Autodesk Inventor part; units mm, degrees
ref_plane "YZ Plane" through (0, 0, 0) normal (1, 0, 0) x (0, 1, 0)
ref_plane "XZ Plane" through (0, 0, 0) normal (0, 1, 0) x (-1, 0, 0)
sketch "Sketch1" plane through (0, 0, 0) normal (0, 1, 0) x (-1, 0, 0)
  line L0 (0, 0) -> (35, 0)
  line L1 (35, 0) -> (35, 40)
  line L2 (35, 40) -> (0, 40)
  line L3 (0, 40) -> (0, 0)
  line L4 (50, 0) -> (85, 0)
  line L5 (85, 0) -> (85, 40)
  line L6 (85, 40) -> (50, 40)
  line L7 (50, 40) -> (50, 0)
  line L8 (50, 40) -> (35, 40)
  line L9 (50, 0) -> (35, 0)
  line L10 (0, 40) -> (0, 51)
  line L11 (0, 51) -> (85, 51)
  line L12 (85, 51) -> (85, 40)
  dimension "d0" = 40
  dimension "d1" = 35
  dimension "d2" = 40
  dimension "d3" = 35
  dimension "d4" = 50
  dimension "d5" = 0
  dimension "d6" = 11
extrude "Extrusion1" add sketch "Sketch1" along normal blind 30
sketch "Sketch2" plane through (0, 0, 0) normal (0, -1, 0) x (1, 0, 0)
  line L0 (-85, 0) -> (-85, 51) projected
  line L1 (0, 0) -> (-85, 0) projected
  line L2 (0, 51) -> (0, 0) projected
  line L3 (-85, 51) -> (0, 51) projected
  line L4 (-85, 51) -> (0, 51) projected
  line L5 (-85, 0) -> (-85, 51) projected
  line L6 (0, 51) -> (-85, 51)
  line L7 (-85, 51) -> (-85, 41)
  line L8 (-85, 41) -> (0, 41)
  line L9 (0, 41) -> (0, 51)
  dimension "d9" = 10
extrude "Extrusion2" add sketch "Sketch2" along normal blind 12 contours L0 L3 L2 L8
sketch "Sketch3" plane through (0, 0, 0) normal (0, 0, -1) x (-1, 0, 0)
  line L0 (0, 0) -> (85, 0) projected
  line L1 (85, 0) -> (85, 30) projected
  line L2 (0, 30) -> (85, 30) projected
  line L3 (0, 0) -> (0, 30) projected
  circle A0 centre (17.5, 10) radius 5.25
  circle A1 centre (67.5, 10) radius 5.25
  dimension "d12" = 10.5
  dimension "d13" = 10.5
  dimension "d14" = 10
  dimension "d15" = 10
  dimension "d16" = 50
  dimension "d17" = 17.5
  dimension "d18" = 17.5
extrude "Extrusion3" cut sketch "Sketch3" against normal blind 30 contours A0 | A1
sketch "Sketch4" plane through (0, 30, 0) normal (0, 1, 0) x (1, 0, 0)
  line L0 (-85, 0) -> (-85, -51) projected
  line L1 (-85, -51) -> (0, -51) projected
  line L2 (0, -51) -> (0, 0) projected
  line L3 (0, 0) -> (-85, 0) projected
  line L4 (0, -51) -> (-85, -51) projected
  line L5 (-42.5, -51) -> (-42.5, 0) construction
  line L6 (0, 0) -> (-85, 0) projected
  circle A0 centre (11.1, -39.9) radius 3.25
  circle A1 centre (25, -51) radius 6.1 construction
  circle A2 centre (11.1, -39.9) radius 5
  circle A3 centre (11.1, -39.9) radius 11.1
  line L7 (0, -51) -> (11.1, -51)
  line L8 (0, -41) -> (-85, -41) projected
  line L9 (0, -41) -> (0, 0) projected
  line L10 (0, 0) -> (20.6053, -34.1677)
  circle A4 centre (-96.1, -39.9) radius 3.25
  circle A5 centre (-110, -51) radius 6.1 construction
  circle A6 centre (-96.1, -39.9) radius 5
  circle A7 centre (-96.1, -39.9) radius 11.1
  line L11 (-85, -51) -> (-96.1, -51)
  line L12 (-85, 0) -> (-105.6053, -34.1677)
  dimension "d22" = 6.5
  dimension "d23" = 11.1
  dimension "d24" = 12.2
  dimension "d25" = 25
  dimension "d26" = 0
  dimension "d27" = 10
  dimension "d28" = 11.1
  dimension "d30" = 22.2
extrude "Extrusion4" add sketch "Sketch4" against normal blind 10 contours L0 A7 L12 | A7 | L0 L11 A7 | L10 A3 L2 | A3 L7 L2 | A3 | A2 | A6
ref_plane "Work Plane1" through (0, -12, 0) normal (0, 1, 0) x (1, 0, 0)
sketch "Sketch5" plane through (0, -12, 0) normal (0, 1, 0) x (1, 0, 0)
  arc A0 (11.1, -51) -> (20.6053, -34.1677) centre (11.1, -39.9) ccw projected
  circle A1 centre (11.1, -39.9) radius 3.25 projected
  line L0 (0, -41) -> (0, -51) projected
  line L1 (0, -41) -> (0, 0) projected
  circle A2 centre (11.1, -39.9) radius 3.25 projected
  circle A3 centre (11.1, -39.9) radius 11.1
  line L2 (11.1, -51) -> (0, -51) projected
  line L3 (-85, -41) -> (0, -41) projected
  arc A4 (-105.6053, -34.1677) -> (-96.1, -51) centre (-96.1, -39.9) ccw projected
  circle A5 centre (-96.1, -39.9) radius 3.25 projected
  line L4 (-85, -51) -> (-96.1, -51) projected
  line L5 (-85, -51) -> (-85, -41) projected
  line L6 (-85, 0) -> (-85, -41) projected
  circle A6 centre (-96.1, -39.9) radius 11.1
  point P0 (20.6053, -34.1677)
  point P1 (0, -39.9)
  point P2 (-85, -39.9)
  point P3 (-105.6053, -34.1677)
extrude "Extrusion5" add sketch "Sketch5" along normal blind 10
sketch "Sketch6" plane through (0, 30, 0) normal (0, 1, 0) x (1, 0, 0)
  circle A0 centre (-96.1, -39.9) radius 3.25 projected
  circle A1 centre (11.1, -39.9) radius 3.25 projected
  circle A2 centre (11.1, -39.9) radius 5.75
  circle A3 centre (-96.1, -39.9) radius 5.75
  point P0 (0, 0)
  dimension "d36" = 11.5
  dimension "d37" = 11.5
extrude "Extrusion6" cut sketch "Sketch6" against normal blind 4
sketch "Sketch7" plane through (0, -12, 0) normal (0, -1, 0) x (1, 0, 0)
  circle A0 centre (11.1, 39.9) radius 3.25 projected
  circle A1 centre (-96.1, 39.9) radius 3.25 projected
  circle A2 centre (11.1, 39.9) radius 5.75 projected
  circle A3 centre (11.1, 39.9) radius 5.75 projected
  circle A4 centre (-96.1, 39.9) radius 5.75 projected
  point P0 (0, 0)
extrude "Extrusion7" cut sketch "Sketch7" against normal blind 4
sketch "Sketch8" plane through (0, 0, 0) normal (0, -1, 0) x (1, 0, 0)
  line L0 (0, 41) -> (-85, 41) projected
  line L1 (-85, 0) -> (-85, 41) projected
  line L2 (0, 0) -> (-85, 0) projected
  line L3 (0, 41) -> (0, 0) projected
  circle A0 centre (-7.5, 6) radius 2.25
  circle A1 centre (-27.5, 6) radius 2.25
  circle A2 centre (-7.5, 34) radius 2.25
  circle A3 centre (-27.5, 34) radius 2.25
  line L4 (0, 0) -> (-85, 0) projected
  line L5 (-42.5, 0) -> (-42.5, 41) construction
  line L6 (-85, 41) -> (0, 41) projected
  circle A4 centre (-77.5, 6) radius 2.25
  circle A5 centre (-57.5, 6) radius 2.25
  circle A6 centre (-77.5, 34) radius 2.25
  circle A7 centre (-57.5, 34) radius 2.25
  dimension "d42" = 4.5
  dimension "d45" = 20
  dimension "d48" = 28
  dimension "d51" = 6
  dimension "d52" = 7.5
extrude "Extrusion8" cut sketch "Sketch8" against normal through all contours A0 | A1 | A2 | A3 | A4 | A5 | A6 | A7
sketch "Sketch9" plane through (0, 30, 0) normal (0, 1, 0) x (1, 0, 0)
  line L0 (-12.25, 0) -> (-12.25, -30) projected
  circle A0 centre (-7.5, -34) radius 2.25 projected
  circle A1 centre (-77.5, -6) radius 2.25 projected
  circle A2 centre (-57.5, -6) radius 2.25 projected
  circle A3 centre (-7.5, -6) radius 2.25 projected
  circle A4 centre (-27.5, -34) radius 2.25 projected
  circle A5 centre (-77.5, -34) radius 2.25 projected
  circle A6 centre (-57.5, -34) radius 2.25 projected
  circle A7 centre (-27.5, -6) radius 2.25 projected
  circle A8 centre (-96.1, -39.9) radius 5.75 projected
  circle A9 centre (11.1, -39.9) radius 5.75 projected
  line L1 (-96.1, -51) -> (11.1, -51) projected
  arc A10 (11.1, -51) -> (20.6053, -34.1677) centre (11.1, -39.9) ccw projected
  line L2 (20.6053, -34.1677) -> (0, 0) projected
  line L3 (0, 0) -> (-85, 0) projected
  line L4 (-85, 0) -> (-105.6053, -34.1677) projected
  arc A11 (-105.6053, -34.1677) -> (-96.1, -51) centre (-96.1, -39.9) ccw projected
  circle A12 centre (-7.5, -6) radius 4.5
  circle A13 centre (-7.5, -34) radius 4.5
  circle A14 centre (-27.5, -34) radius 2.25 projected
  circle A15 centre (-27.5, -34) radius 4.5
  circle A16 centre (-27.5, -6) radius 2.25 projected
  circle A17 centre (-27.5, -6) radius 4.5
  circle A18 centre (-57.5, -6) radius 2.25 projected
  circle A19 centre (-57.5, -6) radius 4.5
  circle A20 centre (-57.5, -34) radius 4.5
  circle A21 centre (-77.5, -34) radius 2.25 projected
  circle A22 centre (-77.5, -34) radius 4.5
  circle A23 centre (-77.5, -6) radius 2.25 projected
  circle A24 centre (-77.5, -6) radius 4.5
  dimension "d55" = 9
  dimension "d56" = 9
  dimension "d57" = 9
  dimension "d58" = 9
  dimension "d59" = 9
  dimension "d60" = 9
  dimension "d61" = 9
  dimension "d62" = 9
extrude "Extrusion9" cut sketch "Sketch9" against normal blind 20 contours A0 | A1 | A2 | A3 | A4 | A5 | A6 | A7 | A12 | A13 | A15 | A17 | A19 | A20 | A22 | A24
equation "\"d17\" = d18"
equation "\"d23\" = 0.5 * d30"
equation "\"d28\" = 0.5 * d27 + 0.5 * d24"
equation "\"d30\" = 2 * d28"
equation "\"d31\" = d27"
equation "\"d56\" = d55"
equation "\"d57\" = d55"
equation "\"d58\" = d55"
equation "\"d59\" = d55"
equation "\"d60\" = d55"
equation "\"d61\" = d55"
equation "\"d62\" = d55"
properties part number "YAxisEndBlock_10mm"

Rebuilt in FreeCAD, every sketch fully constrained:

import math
import FreeCAD as App
import Part
import Sketcher
from FreeCAD import Vector

doc = App.newDocument("Part")
body = doc.addObject("PartDesign::Body", "Body")

sketch1 = body.newObject("Sketcher::SketchObject", "Sketch")
sketch1.AttachmentSupport = (doc.getObject("XZ_Plane"), [""])
sketch1.MapMode = "FlatFace"
sketch1.addGeometry([
    Part.LineSegment(Vector(0, 0, 0), Vector(-85, 0, 0)),
    Part.LineSegment(Vector(-85, 0, 0), Vector(-85, 51, 0)),
    Part.LineSegment(Vector(-85, 51, 0), Vector(0, 51, 0)),
    Part.LineSegment(Vector(0, 51, 0), Vector(0, 0, 0)),
], False)
sketch1.addConstraint([
    Sketcher.Constraint("Coincident", 0, 2, 1, 1),
    Sketcher.Constraint("Coincident", 1, 2, 2, 1),
    Sketcher.Constraint("Coincident", 2, 2, 3, 1),
    Sketcher.Constraint("Coincident", 3, 2, 0, 1),
    Sketcher.Constraint("Horizontal", 0),
    Sketcher.Constraint("Vertical", 1),
    Sketcher.Constraint("Horizontal", 2),
    Sketcher.Constraint("Vertical", 3),
    Sketcher.Constraint("Coincident", 3, 2, -1, 1),
    Sketcher.Constraint("DistanceX", 0, 2, 0, 1, 85.0),
    Sketcher.Constraint("DistanceY", 1, 1, 1, 2, 51.0),
])
pad1 = body.newObject("PartDesign::Pad", "Pad")
pad1.Profile = sketch1
pad1.Length = 30
pad1.Reversed = True

sketch2 = body.newObject("Sketcher::SketchObject", "Sketch001")
sketch2.AttachmentSupport = (doc.getObject("XZ_Plane"), [""])
sketch2.MapMode = "FlatFace"
sketch2.addGeometry([
    Part.LineSegment(Vector(-85, 51, 0), Vector(-85, 41, 0)),
    Part.LineSegment(Vector(-85, 41, 0), Vector(0, 41, 0)),
    Part.LineSegment(Vector(0, 41, 0), Vector(0, 51, 0)),
    Part.LineSegment(Vector(0, 51, 0), Vector(-85, 51, 0)),
], False)
sketch2.addConstraint([
    Sketcher.Constraint("Coincident", 0, 2, 1, 1),
    Sketcher.Constraint("Coincident", 1, 2, 2, 1),
    Sketcher.Constraint("Coincident", 2, 2, 3, 1),
    Sketcher.Constraint("Coincident", 3, 2, 0, 1),
    Sketcher.Constraint("Vertical", 0),
    Sketcher.Constraint("Horizontal", 1),
    Sketcher.Constraint("Vertical", 2),
    Sketcher.Constraint("Horizontal", 3),
    Sketcher.Constraint("PointOnObject", 1, 2, -2),
    Sketcher.Constraint("DistanceY", 0, 2, 0, 1, 10.0),
    Sketcher.Constraint("DistanceX", 1, 1, 1, 2, 85.0),
    Sketcher.Constraint("DistanceY", -1, 1, 0, 2, 41.0),
])
pad2 = body.newObject("PartDesign::Pad", "Pad001")
pad2.Profile = sketch2
pad2.Length = 12

sketch3 = body.newObject("Sketcher::SketchObject", "Sketch002")
sketch3.AttachmentSupport = (doc.getObject("XY_Plane"), [""])
sketch3.MapMode = "FlatFace"
sketch3.addGeometry([
    Part.Circle(Vector(-18, 10, 0), Vector(0, 0, 1), 5),
    Part.Circle(Vector(-68, 10, 0), Vector(0, 0, 1), 5),
], False)
sketch3.addConstraint([
    Sketcher.Constraint("Equal", 0, 1),
    Sketcher.Constraint("Horizontal", 0, 3, 1, 3),
    Sketcher.Constraint("Diameter", 0, 10.5),
    Sketcher.Constraint("DistanceY", -1, 1, 0, 3, 10.0),
    Sketcher.Constraint("DistanceX", 1, 3, 0, 3, 50.0),
    Sketcher.Constraint("DistanceX", 0, 3, -1, 1, 17.5),
])
pocket1 = body.newObject("PartDesign::Pocket", "Pocket")
pocket1.Profile = sketch3
pocket1.Length = 30
pocket1.Reversed = True

sketch4 = body.newObject("Sketcher::SketchObject", "Sketch003")
sketch4.AttachmentSupport = (doc.getObject("XZ_Plane"), [""])
sketch4.MapMode = "FlatFace"
sketch4.AttachmentOffset = App.Placement(Vector(0, 0, -30), App.Rotation())
sketch4.addGeometry([
    Part.LineSegment(Vector(-85, 0, 0), Vector(-105.6, 34.2, 0)),
    Part.ArcOfCircle(Part.Circle(Vector(-96.1, 39.9, 0), Vector(0, 0, 1), 11.1), math.radians(90), math.radians(211)),
    Part.LineSegment(Vector(-96.1, 51, 0), Vector(-85, 51, 0)),
    Part.LineSegment(Vector(-85, 51, 0), Vector(-85, 0, 0)),
    Part.Circle(Vector(-96.1, 39.9, 0), Vector(0, 0, 1), 3.2),
    Part.LineSegment(Vector(20.6, 34.2, 0), Vector(0, 0, 0)),
    Part.LineSegment(Vector(0, 0, 0), Vector(0, 51, 0)),
    Part.LineSegment(Vector(0, 51, 0), Vector(11.1, 51, 0)),
    Part.ArcOfCircle(Part.Circle(Vector(11.1, 39.9, 0), Vector(0, 0, 1), 11.1), math.radians(-31), math.radians(90)),
    Part.Circle(Vector(11.1, 39.9, 0), Vector(0, 0, 1), 3.2),
], False)
sketch4.addConstraint([
    Sketcher.Constraint("Tangent", 0, 2, 1, 2),
    Sketcher.Constraint("Tangent", 1, 1, 2, 1),
    Sketcher.Constraint("Coincident", 2, 2, 3, 1),
    Sketcher.Constraint("Coincident", 3, 2, 0, 1),
    Sketcher.Constraint("Coincident", 5, 2, 6, 1),
    Sketcher.Constraint("Coincident", 6, 2, 7, 1),
    Sketcher.Constraint("Tangent", 7, 2, 8, 2),
    Sketcher.Constraint("Tangent", 8, 1, 5, 1),
    Sketcher.Constraint("Horizontal", 2),
    Sketcher.Constraint("Vertical", 3),
    Sketcher.Constraint("Vertical", 6),
    Sketcher.Constraint("Horizontal", 7),
    Sketcher.Constraint("Coincident", 5, 2, -1, 1),
    Sketcher.Constraint("Coincident", 4, 3, 1, 3),
    Sketcher.Constraint("Coincident", 9, 3, 8, 3),
    Sketcher.Constraint("Equal", 1, 8),
    Sketcher.Constraint("Equal", 4, 9),
    Sketcher.Constraint("PointOnObject", 3, 2, -1),
    Sketcher.Constraint("Horizontal", 4, 3, 8, 3),
    Sketcher.Constraint("Horizontal", 0, 2, 8, 1),
    Sketcher.Constraint("Diameter", 4, 6.5),
    Sketcher.Constraint("Radius", 1, 11.1),
    Sketcher.Constraint("DistanceX", 2, 1, 2, 2, 11.1),
    Sketcher.Constraint("DistanceY", 3, 2, 3, 1, 51.0),
    Sketcher.Constraint("DistanceX", 2, 2, -1, 1, 85.0),
])
pad3 = body.newObject("PartDesign::Pad", "Pad002")
pad3.Profile = sketch4
pad3.Length = 10

sketch5 = body.newObject("Sketcher::SketchObject", "Sketch004")
sketch5.AttachmentSupport = (doc.getObject("XZ_Plane"), [""])
sketch5.MapMode = "FlatFace"
sketch5.AttachmentOffset = App.Placement(Vector(0, 0, 12), App.Rotation())
sketch5.addGeometry([
    Part.ArcOfCircle(Part.Circle(Vector(11.1, 39.9, 0), Vector(0, 0, 1), 11.1), math.radians(180), math.radians(329)),
    Part.LineSegment(Vector(0, 39.9, 0), Vector(0, 51, 0)),
    Part.LineSegment(Vector(0, 51, 0), Vector(11.1, 51, 0)),
    Part.ArcOfCircle(Part.Circle(Vector(11.1, 39.9, 0), Vector(0, 0, 1), 11.1), math.radians(-31), math.radians(90)),
    Part.Circle(Vector(11.1, 39.9, 0), Vector(0, 0, 1), 3.2),
    Part.LineSegment(Vector(-85, 51, 0), Vector(-85, 39.9, 0)),
    Part.ArcOfCircle(Part.Circle(Vector(-96.1, 39.9, 0), Vector(0, 0, 1), 11.1), math.radians(-149), math.radians(0)),
    Part.ArcOfCircle(Part.Circle(Vector(-96.1, 39.9, 0), Vector(0, 0, 1), 11.1), math.radians(90), math.radians(211)),
    Part.LineSegment(Vector(-96.1, 51, 0), Vector(-85, 51, 0)),
    Part.Circle(Vector(-96.1, 39.9, 0), Vector(0, 0, 1), 3.2),
], False)
sketch5.addConstraint([
    Sketcher.Constraint("Tangent", 0, 1, 1, 1),
    Sketcher.Constraint("Coincident", 1, 2, 2, 1),
    Sketcher.Constraint("Tangent", 2, 2, 3, 2),
    Sketcher.Constraint("Tangent", 3, 1, 0, 2),
    Sketcher.Constraint("Tangent", 5, 2, 6, 2),
    Sketcher.Constraint("Tangent", 6, 1, 7, 2),
    Sketcher.Constraint("Tangent", 7, 1, 8, 1),
    Sketcher.Constraint("Coincident", 8, 2, 5, 1),
    Sketcher.Constraint("Vertical", 1),
    Sketcher.Constraint("Horizontal", 2),
    Sketcher.Constraint("Vertical", 5),
    Sketcher.Constraint("Horizontal", 8),
    Sketcher.Constraint("Coincident", 4, 3, 0, 3),
    Sketcher.Constraint("Coincident", 9, 3, 6, 3),
    Sketcher.Constraint("Equal", 0, 3),
    Sketcher.Constraint("Equal", 3, 6),
    Sketcher.Constraint("Equal", 6, 7),
    Sketcher.Constraint("Equal", 4, 9),
    Sketcher.Constraint("PointOnObject", 0, 1, -2),
    Sketcher.Constraint("Horizontal", 4, 3, 6, 3),
    Sketcher.Constraint("Horizontal", 3, 1, 6, 1),
    Sketcher.Constraint("Diameter", 4, 6.5),
    Sketcher.Constraint("Radius", 0, 11.1),
    Sketcher.Constraint("DistanceY", -1, 1, 1, 2, 51.0),
    Sketcher.Constraint("DistanceX", 5, 2, -1, 1, 85.0),
    Sketcher.Constraint("DistanceX", -1, 1, 3, 1, 20.6053),
])
pad4 = body.newObject("PartDesign::Pad", "Pad003")
pad4.Profile = sketch5
pad4.Length = 10
pad4.Reversed = True

sketch6 = body.newObject("Sketcher::SketchObject", "Sketch005")
sketch6.AttachmentSupport = (doc.getObject("XZ_Plane"), [""])
sketch6.MapMode = "FlatFace"
sketch6.AttachmentOffset = App.Placement(Vector(0, 0, -30), App.Rotation())
sketch6.addGeometry([
    Part.Circle(Vector(11.1, 39.9, 0), Vector(0, 0, 1), 5.8),
    Part.Circle(Vector(11.1, 39.9, 0), Vector(0, 0, 1), 3.2),
    Part.Circle(Vector(-96.1, 39.9, 0), Vector(0, 0, 1), 5.8),
    Part.Circle(Vector(-96.1, 39.9, 0), Vector(0, 0, 1), 3.2),
], False)
sketch6.addConstraint([
    Sketcher.Constraint("Coincident", 1, 3, 0, 3),
    Sketcher.Constraint("Coincident", 3, 3, 2, 3),
    Sketcher.Constraint("Equal", 0, 2),
    Sketcher.Constraint("Equal", 1, 3),
    Sketcher.Constraint("Horizontal", 1, 3, 2, 3),
    Sketcher.Constraint("Diameter", 0, 11.5),
    Sketcher.Constraint("Diameter", 1, 6.5),
    Sketcher.Constraint("DistanceX", -1, 1, 0, 3, 11.1),
    Sketcher.Constraint("DistanceY", -1, 1, 0, 3, 39.9),
    Sketcher.Constraint("DistanceX", 2, 3, -1, 1, 96.1),
])
pocket2 = body.newObject("PartDesign::Pocket", "Pocket001")
pocket2.Profile = sketch6
pocket2.Length = 4
pocket2.Reversed = True

sketch7 = body.newObject("Sketcher::SketchObject", "Sketch006")
sketch7.AttachmentSupport = (doc.getObject("XZ_Plane"), [""])
sketch7.MapMode = "FlatFace"
sketch7.AttachmentOffset = App.Placement(Vector(0, 0, 12), App.Rotation())
sketch7.addGeometry([
    Part.Circle(Vector(11.1, 39.9, 0), Vector(0, 0, 1), 5.8),
    Part.Circle(Vector(11.1, 39.9, 0), Vector(0, 0, 1), 3.2),
    Part.Circle(Vector(-96.1, 39.9, 0), Vector(0, 0, 1), 5.8),
    Part.Circle(Vector(-96.1, 39.9, 0), Vector(0, 0, 1), 3.2),
], False)
sketch7.addConstraint([
    Sketcher.Constraint("Coincident", 1, 3, 0, 3),
    Sketcher.Constraint("Coincident", 3, 3, 2, 3),
    Sketcher.Constraint("Equal", 0, 2),
    Sketcher.Constraint("Equal", 1, 3),
    Sketcher.Constraint("Horizontal", 1, 3, 2, 3),
    Sketcher.Constraint("Diameter", 0, 11.5),
    Sketcher.Constraint("Diameter", 1, 6.5),
    Sketcher.Constraint("DistanceX", -1, 1, 0, 3, 11.1),
    Sketcher.Constraint("DistanceY", -1, 1, 0, 3, 39.9),
    Sketcher.Constraint("DistanceX", 2, 3, -1, 1, 96.1),
])
pocket3 = body.newObject("PartDesign::Pocket", "Pocket002")
pocket3.Profile = sketch7
pocket3.Length = 4

sketch8 = body.newObject("Sketcher::SketchObject", "Sketch007")
sketch8.AttachmentSupport = (doc.getObject("XZ_Plane"), [""])
sketch8.MapMode = "FlatFace"
sketch8.addGeometry([
    Part.Circle(Vector(-7.5, 6, 0), Vector(0, 0, 1), 2.2),
    Part.Circle(Vector(-27.5, 6, 0), Vector(0, 0, 1), 2.2),
    Part.Circle(Vector(-7.5, 34, 0), Vector(0, 0, 1), 2.2),
    Part.Circle(Vector(-27.5, 34, 0), Vector(0, 0, 1), 2.2),
    Part.Circle(Vector(-77.5, 6, 0), Vector(0, 0, 1), 2.2),
    Part.Circle(Vector(-57.5, 6, 0), Vector(0, 0, 1), 2.2),
    Part.Circle(Vector(-77.5, 34, 0), Vector(0, 0, 1), 2.2),
    Part.Circle(Vector(-57.5, 34, 0), Vector(0, 0, 1), 2.2),
], False)
sketch8.addConstraint([
    Sketcher.Constraint("Equal", 0, 1),
    Sketcher.Constraint("Equal", 1, 2),
    Sketcher.Constraint("Equal", 2, 3),
    Sketcher.Constraint("Equal", 3, 4),
    Sketcher.Constraint("Equal", 4, 5),
    Sketcher.Constraint("Equal", 5, 6),
    Sketcher.Constraint("Equal", 6, 7),
    Sketcher.Constraint("Horizontal", 0, 3, 1, 3),
    Sketcher.Constraint("Horizontal", 2, 3, 3, 3),
    Sketcher.Constraint("Horizontal", 1, 3, 4, 3),
    Sketcher.Constraint("Horizontal", 4, 3, 5, 3),
    Sketcher.Constraint("Horizontal", 3, 3, 6, 3),
    Sketcher.Constraint("Horizontal", 6, 3, 7, 3),
    Sketcher.Constraint("Vertical", 0, 3, 2, 3),
    Sketcher.Constraint("Vertical", 1, 3, 3, 3),
    Sketcher.Constraint("Vertical", 4, 3, 6, 3),
    Sketcher.Constraint("Vertical", 5, 3, 7, 3),
    Sketcher.Constraint("Diameter", 0, 4.5),
    Sketcher.Constraint("DistanceY", -1, 1, 0, 3, 6.0),
    Sketcher.Constraint("DistanceX", 1, 3, 0, 3, 20.0),
    Sketcher.Constraint("DistanceY", 0, 3, 2, 3, 28.0),
    Sketcher.Constraint("DistanceX", 4, 3, 5, 3, 20.0),
    Sketcher.Constraint("DistanceX", 0, 3, -1, 1, 7.5),
    Sketcher.Constraint("DistanceX", 4, 3, 1, 3, 50.0),
])
pocket4 = body.newObject("PartDesign::Pocket", "Pocket003")
pocket4.Profile = sketch8
pocket4.Type = "ThroughAll"

sketch9 = body.newObject("Sketcher::SketchObject", "Sketch008")
sketch9.AttachmentSupport = (doc.getObject("XZ_Plane"), [""])
sketch9.MapMode = "FlatFace"
sketch9.AttachmentOffset = App.Placement(Vector(0, 0, -30), App.Rotation())
sketch9.addGeometry([
    Part.Circle(Vector(-7.5, 34, 0), Vector(0, 0, 1), 4.5),
    Part.Circle(Vector(-77.5, 6, 0), Vector(0, 0, 1), 4.5),
    Part.Circle(Vector(-57.5, 6, 0), Vector(0, 0, 1), 4.5),
    Part.Circle(Vector(-7.5, 6, 0), Vector(0, 0, 1), 4.5),
    Part.Circle(Vector(-27.5, 34, 0), Vector(0, 0, 1), 4.5),
    Part.Circle(Vector(-77.5, 34, 0), Vector(0, 0, 1), 4.5),
    Part.Circle(Vector(-57.5, 34, 0), Vector(0, 0, 1), 4.5),
    Part.Circle(Vector(-27.5, 6, 0), Vector(0, 0, 1), 4.5),
], False)
sketch9.addConstraint([
    Sketcher.Constraint("Equal", 0, 1),
    Sketcher.Constraint("Equal", 1, 2),
    Sketcher.Constraint("Equal", 2, 3),
    Sketcher.Constraint("Equal", 3, 4),
    Sketcher.Constraint("Equal", 4, 5),
    Sketcher.Constraint("Equal", 5, 6),
    Sketcher.Constraint("Equal", 6, 7),
    Sketcher.Constraint("Horizontal", 1, 3, 2, 3),
    Sketcher.Constraint("Horizontal", 2, 3, 3, 3),
    Sketcher.Constraint("Horizontal", 0, 3, 4, 3),
    Sketcher.Constraint("Horizontal", 4, 3, 5, 3),
    Sketcher.Constraint("Horizontal", 5, 3, 6, 3),
    Sketcher.Constraint("Horizontal", 3, 3, 7, 3),
    Sketcher.Constraint("Vertical", 0, 3, 3, 3),
    Sketcher.Constraint("Vertical", 1, 3, 5, 3),
    Sketcher.Constraint("Vertical", 2, 3, 6, 3),
    Sketcher.Constraint("Vertical", 4, 3, 7, 3),
    Sketcher.Constraint("Diameter", 0, 9.0),
    Sketcher.Constraint("DistanceY", -1, 1, 0, 3, 34.0),
    Sketcher.Constraint("DistanceY", -1, 1, 1, 3, 6.0),
    Sketcher.Constraint("DistanceX", 1, 3, 0, 3, 70.0),
    Sketcher.Constraint("DistanceX", 1, 3, 2, 3, 20.0),
    Sketcher.Constraint("DistanceX", 4, 3, 0, 3, 20.0),
    Sketcher.Constraint("DistanceX", 0, 3, -1, 1, 7.5),
])
pocket5 = body.newObject("PartDesign::Pocket", "Pocket004")
pocket5.Profile = sketch9
pocket5.Length = 20
pocket5.Reversed = True

doc.recompute()
